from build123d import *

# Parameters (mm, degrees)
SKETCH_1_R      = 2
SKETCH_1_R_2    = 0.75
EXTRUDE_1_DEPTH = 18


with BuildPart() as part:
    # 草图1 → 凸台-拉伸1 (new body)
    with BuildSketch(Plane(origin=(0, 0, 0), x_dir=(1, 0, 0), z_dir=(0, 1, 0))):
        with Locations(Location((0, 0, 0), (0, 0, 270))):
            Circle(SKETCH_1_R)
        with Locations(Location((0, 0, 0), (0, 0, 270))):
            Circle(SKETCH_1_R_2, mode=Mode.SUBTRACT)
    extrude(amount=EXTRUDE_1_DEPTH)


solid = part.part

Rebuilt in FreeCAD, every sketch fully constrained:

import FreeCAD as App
import Part
import Sketcher
from FreeCAD import Vector
Q = App.Units.Quantity

doc = App.newDocument("Part")
body = doc.addObject("PartDesign::Body", "Body")

# Sketch on XZ plane
sketch1 = doc.addObject("Sketcher::SketchObject", "Sketch")
body.addObject(sketch1)
sketch1.AttachmentSupport = (doc.XZ_Plane, [""])
sketch1.MapMode = "FlatFace"
sketch1.addGeometry([
    Part.Circle(Vector(0, 0, 0), Vector(0, 0, 1), 2),
    Part.Circle(Vector(0, 0, 0), Vector(0, 0, 1), 0.8),
], False)
sketch1.addConstraint([
    Sketcher.Constraint("Coincident", 0, 3, -1, 1),
    Sketcher.Constraint("Coincident", 1, 3, -1, 1),
    Sketcher.Constraint("Diameter", 0, Q("4 mm")),
    Sketcher.Constraint("Diameter", 1, Q("1.5 mm")),
])
pad1 = doc.addObject("PartDesign::Pad", "Pad")
body.addObject(pad1)
pad1.Profile = sketch1
pad1.Length = 18
pad1.Reversed = True

doc.recompute()
